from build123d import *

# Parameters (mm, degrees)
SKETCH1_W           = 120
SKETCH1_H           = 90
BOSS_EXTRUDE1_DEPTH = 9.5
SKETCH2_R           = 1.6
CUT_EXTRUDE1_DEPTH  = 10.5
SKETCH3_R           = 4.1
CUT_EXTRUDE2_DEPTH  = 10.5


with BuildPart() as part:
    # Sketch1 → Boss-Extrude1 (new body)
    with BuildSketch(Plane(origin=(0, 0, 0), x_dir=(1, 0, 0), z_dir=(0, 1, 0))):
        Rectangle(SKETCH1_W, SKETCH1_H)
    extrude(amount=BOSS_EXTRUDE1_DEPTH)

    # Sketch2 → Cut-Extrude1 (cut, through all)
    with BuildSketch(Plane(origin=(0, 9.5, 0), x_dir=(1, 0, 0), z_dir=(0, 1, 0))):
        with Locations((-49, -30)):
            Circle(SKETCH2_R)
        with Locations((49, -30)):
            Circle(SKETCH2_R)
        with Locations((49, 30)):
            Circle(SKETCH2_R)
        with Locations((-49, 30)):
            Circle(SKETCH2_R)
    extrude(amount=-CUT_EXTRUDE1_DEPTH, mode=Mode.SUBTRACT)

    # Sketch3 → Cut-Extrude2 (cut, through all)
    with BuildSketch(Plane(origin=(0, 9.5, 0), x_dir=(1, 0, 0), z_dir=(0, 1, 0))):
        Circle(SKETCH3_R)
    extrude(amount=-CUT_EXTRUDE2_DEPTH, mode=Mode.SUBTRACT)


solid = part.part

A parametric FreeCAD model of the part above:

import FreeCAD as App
import Part
import Sketcher
Q = App.Units.Quantity


def add_polygon(sketch, points):
    """Adds a closed chain of lines whose ends are joined by coincident constraints."""
    first, n = sketch.GeometryCount, len(points)
    for a, b in zip(points, points[1:] + points[:1]):
        sketch.addGeometry(Part.LineSegment(App.Vector(*a, 0), App.Vector(*b, 0)), False)
    for i in range(n):
        sketch.addConstraint(Sketcher.Constraint("Coincident", first + i, 2, first + (i + 1) % n, 1))

doc = App.newDocument("Part")
body = doc.addObject("PartDesign::Body", "Body")

sketch1 = doc.addObject("Sketcher::SketchObject", "Sketch")
body.addObject(sketch1)
sketch1.AttachmentSupport = (doc.XZ_Plane, [""])
sketch1.MapMode = "FlatFace"
add_polygon(sketch1, [(-60, -45), (-60, 45), (60, 45), (60, -45)])
sketch1.addConstraint([
    Sketcher.Constraint("Vertical", 0),
    Sketcher.Constraint("Horizontal", 1),
    Sketcher.Constraint("Vertical", 2),
    Sketcher.Constraint("Horizontal", 3),
    Sketcher.Constraint("Symmetric", 0, 2, 2, 2, -1, 1),
    Sketcher.Constraint("DistanceX", 1, 1, 1, 2, Q("120 mm")),
    Sketcher.Constraint("DistanceY", 0, 1, 0, 2, Q("90 mm")),
])
pad1 = doc.addObject("PartDesign::Pad", "Pad")
body.addObject(pad1)
pad1.Profile = sketch1
pad1.Length = 9.5
pad1.Reversed = True

sketch2 = doc.addObject("Sketcher::SketchObject", "Sketch001")
body.addObject(sketch2)
sketch2.AttachmentSupport = (doc.XZ_Plane, [""])
sketch2.MapMode = "FlatFace"
sketch2.AttachmentOffset = App.Placement(App.Vector(0, 0, -9.5), App.Rotation())
sketch2.addGeometry([
    Part.Circle(App.Vector(-49, 30, 0), App.Vector(0, 0, 1), 1.6),
    Part.Circle(App.Vector(49, 30, 0), App.Vector(0, 0, 1), 1.6),
    Part.Circle(App.Vector(49, -30, 0), App.Vector(0, 0, 1), 1.6),
    Part.Circle(App.Vector(-49, -30, 0), App.Vector(0, 0, 1), 1.6),
], False)
sketch2.addConstraint([
    Sketcher.Constraint("Equal", 0, 1),
    Sketcher.Constraint("Equal", 1, 2),
    Sketcher.Constraint("Equal", 2, 3),
    Sketcher.Constraint("Symmetric", 0, 3, 2, 3, -1, 1),
    Sketcher.Constraint("Symmetric", 1, 3, 3, 3, -1, 1),
    Sketcher.Constraint("Symmetric", 0, 3, 1, 3, -2),
    Sketcher.Constraint("Diameter", 0, Q("3.2 mm")),
    Sketcher.Constraint("DistanceX", 0, 3, -1, 1, Q("49 mm")),
    Sketcher.Constraint("DistanceY", -1, 1, 0, 3, Q("30 mm")),
])
pocket1 = doc.addObject("PartDesign::Pocket", "Pocket")
body.addObject(pocket1)
pocket1.Profile = sketch2
pocket1.Type = "ThroughAll"
pocket1.Reversed = True

sketch3 = doc.addObject("Sketcher::SketchObject", "Sketch002")
body.addObject(sketch3)
sketch3.AttachmentSupport = (doc.XZ_Plane, [""])
sketch3.MapMode = "FlatFace"
sketch3.AttachmentOffset = App.Placement(App.Vector(0, 0, -9.5), App.Rotation())
sketch3.addGeometry(Part.Circle(App.Vector(0, 0, 0), App.Vector(0, 0, 1), 4.1), False)
sketch3.addConstraint([
    Sketcher.Constraint("Coincident", 0, 3, -1, 1),
    Sketcher.Constraint("Diameter", 0, Q("8.2 mm")),
])
pocket2 = doc.addObject("PartDesign::Pocket", "Pocket001")
body.addObject(pocket2)
pocket2.Profile = sketch3
pocket2.Type = "ThroughAll"
pocket2.Reversed = True

doc.recompute()
